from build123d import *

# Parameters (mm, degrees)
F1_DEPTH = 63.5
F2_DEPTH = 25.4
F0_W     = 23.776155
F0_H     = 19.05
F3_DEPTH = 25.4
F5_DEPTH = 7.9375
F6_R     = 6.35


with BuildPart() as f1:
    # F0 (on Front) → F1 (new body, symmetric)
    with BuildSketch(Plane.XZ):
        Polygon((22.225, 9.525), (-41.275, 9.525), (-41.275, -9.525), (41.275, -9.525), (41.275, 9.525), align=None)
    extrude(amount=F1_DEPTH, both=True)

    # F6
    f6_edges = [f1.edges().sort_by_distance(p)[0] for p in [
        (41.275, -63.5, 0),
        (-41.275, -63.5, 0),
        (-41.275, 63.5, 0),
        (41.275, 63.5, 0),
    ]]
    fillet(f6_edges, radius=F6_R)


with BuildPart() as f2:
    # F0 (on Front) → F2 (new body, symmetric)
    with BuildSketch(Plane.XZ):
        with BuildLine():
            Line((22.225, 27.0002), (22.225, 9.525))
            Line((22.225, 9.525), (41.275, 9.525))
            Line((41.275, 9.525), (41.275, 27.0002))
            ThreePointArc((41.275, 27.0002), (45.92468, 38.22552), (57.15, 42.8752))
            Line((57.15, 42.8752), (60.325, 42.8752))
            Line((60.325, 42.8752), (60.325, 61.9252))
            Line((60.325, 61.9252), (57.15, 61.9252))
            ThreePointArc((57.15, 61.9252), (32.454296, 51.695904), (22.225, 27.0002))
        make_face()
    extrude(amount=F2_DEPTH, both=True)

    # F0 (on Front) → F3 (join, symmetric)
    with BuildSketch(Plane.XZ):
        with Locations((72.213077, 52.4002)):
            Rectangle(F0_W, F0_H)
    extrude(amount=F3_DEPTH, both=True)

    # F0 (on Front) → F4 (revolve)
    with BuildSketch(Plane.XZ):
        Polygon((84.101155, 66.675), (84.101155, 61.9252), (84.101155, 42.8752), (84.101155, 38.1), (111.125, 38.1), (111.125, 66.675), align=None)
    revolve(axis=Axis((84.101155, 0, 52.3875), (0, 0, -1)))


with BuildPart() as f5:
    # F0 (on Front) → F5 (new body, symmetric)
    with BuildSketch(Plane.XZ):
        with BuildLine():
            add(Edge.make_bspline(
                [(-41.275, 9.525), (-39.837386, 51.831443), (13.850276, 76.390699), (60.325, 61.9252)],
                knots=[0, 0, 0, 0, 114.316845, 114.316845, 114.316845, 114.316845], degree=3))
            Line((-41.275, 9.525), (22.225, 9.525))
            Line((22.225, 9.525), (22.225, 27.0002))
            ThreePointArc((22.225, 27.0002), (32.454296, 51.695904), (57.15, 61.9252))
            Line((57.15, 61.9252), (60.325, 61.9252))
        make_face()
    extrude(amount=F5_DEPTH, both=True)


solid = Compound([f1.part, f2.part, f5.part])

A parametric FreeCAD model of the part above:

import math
import FreeCAD as App
import Part
import Sketcher
Q = App.Units.Quantity


def edges_at(feature, points):
    """Names of the edges that pass closest to the given points."""
    edges = feature.Shape.Edges
    near = lambda p: min(range(len(edges)), key=lambda i: edges[i].distToShape(Part.Vertex(*p))[0])
    return sorted({f"Edge{near(p) + 1}" for p in points})

doc = App.newDocument("Part")
body = doc.addObject("PartDesign::Body", "Body")

sketch1 = body.newObject("Sketcher::SketchObject", "Sketch")
sketch1.AttachmentSupport = (doc.getObject("XZ_Plane"), [""])
sketch1.MapMode = "FlatFace"
sketch1.addGeometry(Part.LineSegment(App.Vector(-41, 10, 0), App.Vector(-41, -10, 0)), False)
sketch1.addGeometry(Part.LineSegment(App.Vector(-41, -10, 0), App.Vector(41, -10, 0)), False)
sketch1.addGeometry(Part.LineSegment(App.Vector(41, -10, 0), App.Vector(41, 10, 0)), False)
sketch1.addGeometry(Part.LineSegment(App.Vector(41, 10, 0), App.Vector(-41, 10, 0)), False)
sketch1.addConstraint(Sketcher.Constraint("Coincident", 0, 2, 1, 1))
sketch1.addConstraint(Sketcher.Constraint("Coincident", 1, 2, 2, 1))
sketch1.addConstraint(Sketcher.Constraint("Coincident", 2, 2, 3, 1))
sketch1.addConstraint(Sketcher.Constraint("Coincident", 3, 2, 0, 1))
sketch1.addConstraint(Sketcher.Constraint("Vertical", 0))
sketch1.addConstraint(Sketcher.Constraint("Horizontal", 1))
sketch1.addConstraint(Sketcher.Constraint("Vertical", 2))
sketch1.addConstraint(Sketcher.Constraint("Horizontal", 3))
sketch1.addConstraint(Sketcher.Constraint("Symmetric", 0, 2, 2, 2, -1, 1))
sketch1.addConstraint(Sketcher.Constraint("DistanceX", 1, 1, 1, 2, Q("3.25 in")))
sketch1.addConstraint(Sketcher.Constraint("DistanceY", 0, 2, 0, 1, Q("0.75 in")))
pad1 = body.newObject("PartDesign::Pad", "Pad")
pad1.Profile = sketch1
pad1.Length = Q("5 in")
pad1.Midplane = True
doc.recompute()

fillet = body.newObject("PartDesign::Fillet", "Fillet")
fillet.Base = (pad1, edges_at(pad1, [
    (41.275, -63.5, 0),
    (-41.275, -63.5, 0),
    (-41.275, 63.5, 0),
    (41.275, 63.5, 0),
]))
fillet.Radius = Q("0.25 in")
body2 = doc.addObject("PartDesign::Body", "Body001")

sketch2 = body2.newObject("Sketcher::SketchObject", "Sketch001")
sketch2.AttachmentSupport = (doc.getObject("XZ_Plane001"), [""])
sketch2.MapMode = "FlatFace"
sketch2.addGeometry(Part.LineSegment(App.Vector(22.2, 27, 0), App.Vector(22.2, 9.5, 0)), False)
sketch2.addGeometry(Part.LineSegment(App.Vector(22.2, 9.5, 0), App.Vector(41.3, 9.5, 0)), False)
sketch2.addGeometry(Part.LineSegment(App.Vector(41.3, 9.5, 0), App.Vector(41.3, 27, 0)), False)
sketch2.addGeometry(Part.ArcOfCircle(Part.Circle(App.Vector(57.2, 27, 0), App.Vector(0, 0, 1), 15.9), math.radians(90), math.radians(180)), False)
sketch2.addGeometry(Part.LineSegment(App.Vector(57.1, 42.9, 0), App.Vector(60.3, 42.9, 0)), False)
sketch2.addGeometry(Part.LineSegment(App.Vector(60.3, 42.9, 0), App.Vector(60.3, 61.9, 0)), False)
sketch2.addGeometry(Part.LineSegment(App.Vector(60.3, 61.9, 0), App.Vector(57.1, 61.9, 0)), False)
sketch2.addGeometry(Part.ArcOfCircle(Part.Circle(App.Vector(57.2, 27, 0), App.Vector(0, 0, 1), 34.9), math.radians(90), math.radians(180)), False)
sketch2.addConstraint(Sketcher.Constraint("Coincident", 0, 2, 1, 1))
sketch2.addConstraint(Sketcher.Constraint("Coincident", 1, 2, 2, 1))
sketch2.addConstraint(Sketcher.Constraint("Tangent", 2, 2, 3, 2))
sketch2.addConstraint(Sketcher.Constraint("Tangent", 3, 1, 4, 1))
sketch2.addConstraint(Sketcher.Constraint("Coincident", 4, 2, 5, 1))
sketch2.addConstraint(Sketcher.Constraint("Coincident", 5, 2, 6, 1))
sketch2.addConstraint(Sketcher.Constraint("Tangent", 6, 2, 7, 1))
sketch2.addConstraint(Sketcher.Constraint("Tangent", 7, 2, 0, 1))
sketch2.addConstraint(Sketcher.Constraint("Vertical", 0))
sketch2.addConstraint(Sketcher.Constraint("Horizontal", 1))
sketch2.addConstraint(Sketcher.Constraint("Vertical", 2))
sketch2.addConstraint(Sketcher.Constraint("Horizontal", 4))
sketch2.addConstraint(Sketcher.Constraint("Vertical", 5))
sketch2.addConstraint(Sketcher.Constraint("Horizontal", 6))
sketch2.addConstraint(Sketcher.Constraint("Coincident", 7, 3, 3, 3))
sketch2.addConstraint(Sketcher.Constraint("Radius", 3, Q("0.625 in")))
sketch2.addConstraint(Sketcher.Constraint("Radius", 7, Q("1.375 in")))
sketch2.addConstraint(Sketcher.Constraint("DistanceX", 4, 1, 4, 2, Q("0.125 in")))
sketch2.addConstraint(Sketcher.Constraint("DistanceY", 0, 2, 0, 1, Q("0.688 in")))
sketch2.addConstraint(Sketcher.Constraint("DistanceX", -1, 1, 3, 3, Q("2.25 in")))
sketch2.addConstraint(Sketcher.Constraint("DistanceY", -1, 1, 3, 3, Q("1.063 in")))
pad2 = body2.newObject("PartDesign::Pad", "Pad001")
pad2.Profile = sketch2
pad2.Length = Q("2 in")
pad2.Midplane = True

sketch3 = body2.newObject("Sketcher::SketchObject", "Sketch002")
sketch3.AttachmentSupport = (doc.getObject("XZ_Plane001"), [""])
sketch3.MapMode = "FlatFace"
sketch3.addGeometry(Part.LineSegment(App.Vector(60, 62, 0), App.Vector(60, 43, 0)), False)
sketch3.addGeometry(Part.LineSegment(App.Vector(60, 43, 0), App.Vector(84, 43, 0)), False)
sketch3.addGeometry(Part.LineSegment(App.Vector(84, 43, 0), App.Vector(84, 62, 0)), False)
sketch3.addGeometry(Part.LineSegment(App.Vector(84, 62, 0), App.Vector(60, 62, 0)), False)
sketch3.addConstraint(Sketcher.Constraint("Coincident", 0, 2, 1, 1))
sketch3.addConstraint(Sketcher.Constraint("Coincident", 1, 2, 2, 1))
sketch3.addConstraint(Sketcher.Constraint("Coincident", 2, 2, 3, 1))
sketch3.addConstraint(Sketcher.Constraint("Coincident", 3, 2, 0, 1))
sketch3.addConstraint(Sketcher.Constraint("Vertical", 0))
sketch3.addConstraint(Sketcher.Constraint("Horizontal", 1))
sketch3.addConstraint(Sketcher.Constraint("Vertical", 2))
sketch3.addConstraint(Sketcher.Constraint("Horizontal", 3))
sketch3.addConstraint(Sketcher.Constraint("DistanceY", 0, 2, 0, 1, Q("0.75 in")))
sketch3.addConstraint(Sketcher.Constraint("DistanceX", -1, 1, 0, 2, Q("2.375 in")))
sketch3.addConstraint(Sketcher.Constraint("DistanceY", -1, 1, 0, 2, Q("1.688 in")))
sketch3.addConstraint(Sketcher.Constraint("DistanceX", 1, 1, 1, 2, 23.776155))
pad3 = body2.newObject("PartDesign::Pad", "Pad002")
pad3.Profile = sketch3
pad3.Length = Q("2 in")
pad3.Midplane = True

sketch4 = body2.newObject("Sketcher::SketchObject", "Sketch003")
sketch4.AttachmentSupport = (doc.getObject("XZ_Plane001"), [""])
sketch4.MapMode = "FlatFace"
sketch4.addGeometry(Part.LineSegment(App.Vector(84, 67, 0), App.Vector(84, 38, 0)), False)
sketch4.addGeometry(Part.LineSegment(App.Vector(84, 38, 0), App.Vector(111, 38, 0)), False)
sketch4.addGeometry(Part.LineSegment(App.Vector(111, 38, 0), App.Vector(111, 67, 0)), False)
sketch4.addGeometry(Part.LineSegment(App.Vector(111, 67, 0), App.Vector(84, 67, 0)), False)
sketch4.addGeometry(Part.LineSegment(App.Vector(84, 67, 0), App.Vector(84, 38, 0)), True)
sketch4.addConstraint(Sketcher.Constraint("Coincident", 0, 2, 1, 1))
sketch4.addConstraint(Sketcher.Constraint("Coincident", 1, 2, 2, 1))
sketch4.addConstraint(Sketcher.Constraint("Coincident", 2, 2, 3, 1))
sketch4.addConstraint(Sketcher.Constraint("Coincident", 3, 2, 0, 1))
sketch4.addConstraint(Sketcher.Constraint("Vertical", 0))
sketch4.addConstraint(Sketcher.Constraint("Horizontal", 1))
sketch4.addConstraint(Sketcher.Constraint("Vertical", 2))
sketch4.addConstraint(Sketcher.Constraint("Horizontal", 3))
sketch4.addConstraint(Sketcher.Constraint("Vertical", 4))
sketch4.addConstraint(Sketcher.Constraint("Coincident", 4, 1, 3, 2))
sketch4.addConstraint(Sketcher.Constraint("Horizontal", 1, 2, 4, 2))
sketch4.addConstraint(Sketcher.Constraint("DistanceY", -1, 1, 0, 2, Q("1.5 in")))
sketch4.addConstraint(Sketcher.Constraint("DistanceY", 0, 2, 0, 1, Q("1.125 in")))
sketch4.addConstraint(Sketcher.Constraint("DistanceX", -1, 1, 1, 2, Q("4.375 in")))
sketch4.addConstraint(Sketcher.Constraint("DistanceX", 1, 1, 1, 2, 27.023845))
revolution = body2.newObject("PartDesign::Revolution", "Revolution")
revolution.Profile = sketch4
revolution.ReferenceAxis = (sketch4, ["Axis0"])
revolution.Angle = 360
body3 = doc.addObject("PartDesign::Body", "Body002")

sketch5 = body3.newObject("Sketcher::SketchObject", "Sketch004")
sketch5.AttachmentSupport = (doc.getObject("XZ_Plane002"), [""])
sketch5.MapMode = "FlatFace"
sketch5.addGeometry(Part.BSplineCurve([App.Vector(-41.275, 9.525, 0), App.Vector(-39.837386, 51.831443, 0), App.Vector(13.850276, 76.390699, 0), App.Vector(60.325, 61.9252, 0)], [4, 4], [0, 114.316845], False, 3, [1, 1, 1, 1], False), False)
sketch5.addGeometry(Part.LineSegment(App.Vector(-41.275, 9.525, 0), App.Vector(22.225, 9.525, 0)), False)
sketch5.addGeometry(Part.LineSegment(App.Vector(22.225, 9.525, 0), App.Vector(22.225, 27.0002, 0)), False)
sketch5.addGeometry(Part.ArcOfCircle(Part.Circle(App.Vector(57.150001, 27.000199, 0), App.Vector(0, 0, 1), 34.925001), math.radians(90.000002), math.radians(179.999998)), False)
sketch5.addGeometry(Part.LineSegment(App.Vector(57.15, 61.9252, 0), App.Vector(60.325, 61.9252, 0)), False)
sketch5.addConstraint(Sketcher.Constraint("Block", 0))
sketch5.addConstraint(Sketcher.Constraint("Coincident", 0, 1, 1, 1))
sketch5.addConstraint(Sketcher.Constraint("Coincident", 1, 2, 2, 1))
sketch5.addConstraint(Sketcher.Constraint("Tangent", 2, 2, 3, 2))
sketch5.addConstraint(Sketcher.Constraint("Tangent", 3, 1, 4, 1))
sketch5.addConstraint(Sketcher.Constraint("Coincident", 4, 2, 0, 2))
sketch5.addConstraint(Sketcher.Constraint("Horizontal", 1))
sketch5.addConstraint(Sketcher.Constraint("Vertical", 2))
sketch5.addConstraint(Sketcher.Constraint("Horizontal", 4))
sketch5.addConstraint(Sketcher.Constraint("DistanceX", 1, 1, 1, 2, Q("2.5 in")))
sketch5.addConstraint(Sketcher.Constraint("Radius", 3, Q("1.375 in")))
pad4 = body3.newObject("PartDesign::Pad", "Pad003")
pad4.Profile = sketch5
pad4.Length = Q("0.625 in")
pad4.Midplane = True

doc.recompute()
